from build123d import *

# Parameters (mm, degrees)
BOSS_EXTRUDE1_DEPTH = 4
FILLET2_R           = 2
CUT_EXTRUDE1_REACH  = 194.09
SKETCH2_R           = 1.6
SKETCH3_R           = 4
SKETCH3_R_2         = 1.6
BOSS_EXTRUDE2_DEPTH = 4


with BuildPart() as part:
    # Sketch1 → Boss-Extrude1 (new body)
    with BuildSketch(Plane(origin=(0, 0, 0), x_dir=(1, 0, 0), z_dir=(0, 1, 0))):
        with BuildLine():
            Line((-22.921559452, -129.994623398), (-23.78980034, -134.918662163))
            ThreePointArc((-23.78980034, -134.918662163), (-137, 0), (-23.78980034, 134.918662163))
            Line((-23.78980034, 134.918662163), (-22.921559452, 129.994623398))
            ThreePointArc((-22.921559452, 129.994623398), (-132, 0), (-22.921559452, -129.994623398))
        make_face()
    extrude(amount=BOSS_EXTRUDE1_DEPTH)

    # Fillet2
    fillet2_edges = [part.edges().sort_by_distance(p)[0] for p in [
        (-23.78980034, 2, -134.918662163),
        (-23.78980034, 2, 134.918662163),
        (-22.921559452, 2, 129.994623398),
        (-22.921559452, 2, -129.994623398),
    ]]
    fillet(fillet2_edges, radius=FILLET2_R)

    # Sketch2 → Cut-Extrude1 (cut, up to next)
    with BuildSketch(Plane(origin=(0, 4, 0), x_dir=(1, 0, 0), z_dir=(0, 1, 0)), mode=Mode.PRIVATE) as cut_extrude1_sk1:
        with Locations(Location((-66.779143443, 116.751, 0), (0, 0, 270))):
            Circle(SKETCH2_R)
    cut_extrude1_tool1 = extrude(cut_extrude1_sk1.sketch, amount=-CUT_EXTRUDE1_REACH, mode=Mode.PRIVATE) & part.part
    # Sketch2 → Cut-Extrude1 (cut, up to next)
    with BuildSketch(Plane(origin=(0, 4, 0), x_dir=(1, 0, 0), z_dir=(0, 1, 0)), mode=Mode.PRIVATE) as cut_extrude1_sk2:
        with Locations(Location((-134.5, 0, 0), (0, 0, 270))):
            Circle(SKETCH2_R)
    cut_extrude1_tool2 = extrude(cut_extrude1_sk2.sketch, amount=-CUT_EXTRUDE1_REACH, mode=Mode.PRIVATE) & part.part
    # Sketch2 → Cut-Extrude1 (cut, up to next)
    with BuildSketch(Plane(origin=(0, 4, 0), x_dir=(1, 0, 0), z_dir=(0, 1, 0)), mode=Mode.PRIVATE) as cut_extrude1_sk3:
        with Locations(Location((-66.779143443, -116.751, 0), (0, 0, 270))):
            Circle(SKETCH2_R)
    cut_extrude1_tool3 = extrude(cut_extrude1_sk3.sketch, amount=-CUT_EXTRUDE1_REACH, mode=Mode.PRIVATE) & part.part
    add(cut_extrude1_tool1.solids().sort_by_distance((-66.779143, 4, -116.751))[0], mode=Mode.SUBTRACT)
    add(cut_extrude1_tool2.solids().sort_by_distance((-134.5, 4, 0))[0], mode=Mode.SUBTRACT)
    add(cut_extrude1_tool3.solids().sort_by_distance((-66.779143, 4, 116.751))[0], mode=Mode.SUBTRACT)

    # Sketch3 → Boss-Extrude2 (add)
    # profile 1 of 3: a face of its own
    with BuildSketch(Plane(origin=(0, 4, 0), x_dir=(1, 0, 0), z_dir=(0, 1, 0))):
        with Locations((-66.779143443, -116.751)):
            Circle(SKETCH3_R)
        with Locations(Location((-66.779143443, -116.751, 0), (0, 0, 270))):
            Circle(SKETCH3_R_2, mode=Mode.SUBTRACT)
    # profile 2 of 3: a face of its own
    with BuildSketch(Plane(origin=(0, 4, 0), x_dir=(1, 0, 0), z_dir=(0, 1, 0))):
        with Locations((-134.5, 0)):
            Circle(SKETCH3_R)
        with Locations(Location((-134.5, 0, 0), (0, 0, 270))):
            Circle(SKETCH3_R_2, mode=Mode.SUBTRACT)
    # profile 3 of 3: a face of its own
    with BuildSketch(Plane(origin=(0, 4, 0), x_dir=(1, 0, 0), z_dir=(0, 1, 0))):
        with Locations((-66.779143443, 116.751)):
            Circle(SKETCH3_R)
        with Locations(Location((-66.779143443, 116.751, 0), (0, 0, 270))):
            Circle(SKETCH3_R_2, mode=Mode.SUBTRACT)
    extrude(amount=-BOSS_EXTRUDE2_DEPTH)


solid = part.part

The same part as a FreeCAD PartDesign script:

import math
import FreeCAD as App
import Part
import Sketcher

V = App.Vector
Q = App.Units.Quantity


def edges_at(feature, points):
    """Names of the edges that pass closest to the given points."""
    edges = feature.Shape.Edges
    near = lambda p: min(range(len(edges)), key=lambda i: edges[i].distToShape(Part.Vertex(*p))[0])
    return sorted({f"Edge{near(p) + 1}" for p in points})

doc = App.newDocument("Part")
body = doc.addObject("PartDesign::Body", "Body")

# Sketch on XZ plane
sketch1 = body.newObject("Sketcher::SketchObject", "Sketch")
sketch1.AttachmentSupport = (doc.getObject("XZ_Plane"), [""])
sketch1.MapMode = "FlatFace"
sketch1.addGeometry(Part.LineSegment(V(-23.7898, 134.918662, 0), V(-22.921559, 129.994623, 0)), False)
sketch1.addGeometry(Part.ArcOfCircle(Part.Circle(V(0, 0, 0), V(0, 0, 1), 132), math.radians(100), math.radians(260)), False)
sketch1.addGeometry(Part.LineSegment(V(-22.921559, -129.994623, 0), V(-23.7898, -134.918662, 0)), False)
sketch1.addGeometry(Part.ArcOfCircle(Part.Circle(V(0, 0, 0), V(0, 0, 1), 137), math.radians(100), math.radians(260)), False)
sketch1.addConstraint(Sketcher.Constraint("Coincident", 0, 2, 1, 1))
sketch1.addConstraint(Sketcher.Constraint("Coincident", 1, 2, 2, 1))
sketch1.addConstraint(Sketcher.Constraint("Coincident", 2, 2, 3, 2))
sketch1.addConstraint(Sketcher.Constraint("Coincident", 3, 1, 0, 1))
sketch1.addConstraint(Sketcher.Constraint("Coincident", 1, 3, -1, 1))
sketch1.addConstraint(Sketcher.Constraint("Coincident", 3, 3, -1, 1))
sketch1.addConstraint(Sketcher.Constraint("Vertical", 0, 2, 1, 2))
sketch1.addConstraint(Sketcher.Constraint("Vertical", 2, 2, 3, 1))
sketch1.addConstraint(Sketcher.Constraint("Radius", 1, Q("132 mm")))
sketch1.addConstraint(Sketcher.Constraint("Radius", 3, Q("137 mm")))
sketch1.addConstraint(Sketcher.Constraint("Angle", 0, Q("-80 deg")))
sketch1.addConstraint(Sketcher.Constraint("DistanceX", 2, 2, -1, 1, Q("23.7898 mm")))
pad1 = body.newObject("PartDesign::Pad", "Pad")
pad1.Profile = sketch1
pad1.Length = 4
pad1.Reversed = True
doc.recompute()

fillet = body.newObject("PartDesign::Fillet", "Fillet")
fillet.Base = (pad1, edges_at(pad1, [
    (-23.79, 2, -134.919),
    (-23.79, 2, 134.919),
    (-22.922, 2, 129.995),
    (-22.922, 2, -129.995),
]))
fillet.Radius = 2

# Sketch on XZ plane
sketch2 = body.newObject("Sketcher::SketchObject", "Sketch001")
sketch2.AttachmentSupport = (doc.getObject("XZ_Plane"), [""])
sketch2.MapMode = "FlatFace"
sketch2.AttachmentOffset = App.Placement(V(0, 0, -4), App.Rotation())
sketch2.addGeometry(Part.Circle(V(-66.779143, -116.751, 0), V(0, 0, 1), 1.6), False)
sketch2.addConstraint(Sketcher.Constraint("Diameter", 0, Q("3.2 mm")))
sketch2.addConstraint(Sketcher.Constraint("DistanceY", 0, 3, -1, 1, Q("116.751 mm")))
sketch2.addConstraint(Sketcher.Constraint("DistanceX", 0, 3, -1, 1, Q("66.779143 mm")))
pocket1 = body.newObject("PartDesign::Pocket", "Pocket")
pocket1.Profile = sketch2
pocket1.Type = "UpToFirst"
pocket1.Reversed = True

# Sketch on XZ plane
sketch3 = body.newObject("Sketcher::SketchObject", "Sketch002")
sketch3.AttachmentSupport = (doc.getObject("XZ_Plane"), [""])
sketch3.MapMode = "FlatFace"
sketch3.AttachmentOffset = App.Placement(V(0, 0, -4), App.Rotation())
sketch3.addGeometry(Part.Circle(V(-134.5, 0, 0), V(0, 0, 1), 1.6), False)
sketch3.addConstraint(Sketcher.Constraint("PointOnObject", 0, 3, -1))
sketch3.addConstraint(Sketcher.Constraint("Diameter", 0, Q("3.2 mm")))
sketch3.addConstraint(Sketcher.Constraint("DistanceX", 0, 3, -1, 1, Q("134.5 mm")))
pocket2 = body.newObject("PartDesign::Pocket", "Pocket001")
pocket2.Profile = sketch3
pocket2.Type = "UpToFirst"
pocket2.Reversed = True

# Sketch on XZ plane
sketch4 = body.newObject("Sketcher::SketchObject", "Sketch003")
sketch4.AttachmentSupport = (doc.getObject("XZ_Plane"), [""])
sketch4.MapMode = "FlatFace"
sketch4.AttachmentOffset = App.Placement(V(0, 0, -4), App.Rotation())
sketch4.addGeometry(Part.Circle(V(-66.779143, 116.751, 0), V(0, 0, 1), 1.6), False)
sketch4.addConstraint(Sketcher.Constraint("Diameter", 0, Q("3.2 mm")))
sketch4.addConstraint(Sketcher.Constraint("DistanceY", -1, 1, 0, 3, Q("116.751 mm")))
sketch4.addConstraint(Sketcher.Constraint("DistanceX", 0, 3, -1, 1, Q("66.779143 mm")))
pocket3 = body.newObject("PartDesign::Pocket", "Pocket002")
pocket3.Profile = sketch4
pocket3.Type = "UpToFirst"
pocket3.Reversed = True

# Sketch on XZ plane
sketch5 = body.newObject("Sketcher::SketchObject", "Sketch004")
sketch5.AttachmentSupport = (doc.getObject("XZ_Plane"), [""])
sketch5.MapMode = "FlatFace"
sketch5.AttachmentOffset = App.Placement(V(0, 0, -4), App.Rotation())
sketch5.addGeometry(Part.Circle(V(-66.779143, 116.751, 0), V(0, 0, 1), 4), False)
sketch5.addGeometry(Part.Circle(V(-66.779143, 116.751, 0), V(0, 0, 1), 1.6), False)
sketch5.addGeometry(Part.Circle(V(-134.5, 0, 0), V(0, 0, 1), 4), False)
sketch5.addGeometry(Part.Circle(V(-134.5, 0, 0), V(0, 0, 1), 1.6), False)
sketch5.addGeometry(Part.Circle(V(-66.779143, -116.751, 0), V(0, 0, 1), 4), False)
sketch5.addGeometry(Part.Circle(V(-66.779143, -116.751, 0), V(0, 0, 1), 1.6), False)
sketch5.addConstraint(Sketcher.Constraint("Coincident", 1, 3, 0, 3))
sketch5.addConstraint(Sketcher.Constraint("Coincident", 3, 3, 2, 3))
sketch5.addConstraint(Sketcher.Constraint("Coincident", 5, 3, 4, 3))
sketch5.addConstraint(Sketcher.Constraint("Equal", 0, 2))
sketch5.addConstraint(Sketcher.Constraint("Equal", 1, 3))
sketch5.addConstraint(Sketcher.Constraint("Equal", 2, 4))
sketch5.addConstraint(Sketcher.Constraint("Equal", 3, 5))
sketch5.addConstraint(Sketcher.Constraint("Symmetric", 0, 3, 4, 3, -1))
sketch5.addConstraint(Sketcher.Constraint("PointOnObject", 2, 3, -1))
sketch5.addConstraint(Sketcher.Constraint("Diameter", 0, Q("8 mm")))
sketch5.addConstraint(Sketcher.Constraint("Diameter", 1, Q("3.2 mm")))
sketch5.addConstraint(Sketcher.Constraint("DistanceX", 2, 3, -1, 1, Q("134.5 mm")))
sketch5.addConstraint(Sketcher.Constraint("DistanceY", -1, 1, 0, 3, Q("116.751 mm")))
sketch5.addConstraint(Sketcher.Constraint("DistanceX", 0, 3, -1, 1, Q("66.779143 mm")))
pad2 = body.newObject("PartDesign::Pad", "Pad001")
pad2.Profile = sketch5
pad2.Length = 4

doc.recompute()
